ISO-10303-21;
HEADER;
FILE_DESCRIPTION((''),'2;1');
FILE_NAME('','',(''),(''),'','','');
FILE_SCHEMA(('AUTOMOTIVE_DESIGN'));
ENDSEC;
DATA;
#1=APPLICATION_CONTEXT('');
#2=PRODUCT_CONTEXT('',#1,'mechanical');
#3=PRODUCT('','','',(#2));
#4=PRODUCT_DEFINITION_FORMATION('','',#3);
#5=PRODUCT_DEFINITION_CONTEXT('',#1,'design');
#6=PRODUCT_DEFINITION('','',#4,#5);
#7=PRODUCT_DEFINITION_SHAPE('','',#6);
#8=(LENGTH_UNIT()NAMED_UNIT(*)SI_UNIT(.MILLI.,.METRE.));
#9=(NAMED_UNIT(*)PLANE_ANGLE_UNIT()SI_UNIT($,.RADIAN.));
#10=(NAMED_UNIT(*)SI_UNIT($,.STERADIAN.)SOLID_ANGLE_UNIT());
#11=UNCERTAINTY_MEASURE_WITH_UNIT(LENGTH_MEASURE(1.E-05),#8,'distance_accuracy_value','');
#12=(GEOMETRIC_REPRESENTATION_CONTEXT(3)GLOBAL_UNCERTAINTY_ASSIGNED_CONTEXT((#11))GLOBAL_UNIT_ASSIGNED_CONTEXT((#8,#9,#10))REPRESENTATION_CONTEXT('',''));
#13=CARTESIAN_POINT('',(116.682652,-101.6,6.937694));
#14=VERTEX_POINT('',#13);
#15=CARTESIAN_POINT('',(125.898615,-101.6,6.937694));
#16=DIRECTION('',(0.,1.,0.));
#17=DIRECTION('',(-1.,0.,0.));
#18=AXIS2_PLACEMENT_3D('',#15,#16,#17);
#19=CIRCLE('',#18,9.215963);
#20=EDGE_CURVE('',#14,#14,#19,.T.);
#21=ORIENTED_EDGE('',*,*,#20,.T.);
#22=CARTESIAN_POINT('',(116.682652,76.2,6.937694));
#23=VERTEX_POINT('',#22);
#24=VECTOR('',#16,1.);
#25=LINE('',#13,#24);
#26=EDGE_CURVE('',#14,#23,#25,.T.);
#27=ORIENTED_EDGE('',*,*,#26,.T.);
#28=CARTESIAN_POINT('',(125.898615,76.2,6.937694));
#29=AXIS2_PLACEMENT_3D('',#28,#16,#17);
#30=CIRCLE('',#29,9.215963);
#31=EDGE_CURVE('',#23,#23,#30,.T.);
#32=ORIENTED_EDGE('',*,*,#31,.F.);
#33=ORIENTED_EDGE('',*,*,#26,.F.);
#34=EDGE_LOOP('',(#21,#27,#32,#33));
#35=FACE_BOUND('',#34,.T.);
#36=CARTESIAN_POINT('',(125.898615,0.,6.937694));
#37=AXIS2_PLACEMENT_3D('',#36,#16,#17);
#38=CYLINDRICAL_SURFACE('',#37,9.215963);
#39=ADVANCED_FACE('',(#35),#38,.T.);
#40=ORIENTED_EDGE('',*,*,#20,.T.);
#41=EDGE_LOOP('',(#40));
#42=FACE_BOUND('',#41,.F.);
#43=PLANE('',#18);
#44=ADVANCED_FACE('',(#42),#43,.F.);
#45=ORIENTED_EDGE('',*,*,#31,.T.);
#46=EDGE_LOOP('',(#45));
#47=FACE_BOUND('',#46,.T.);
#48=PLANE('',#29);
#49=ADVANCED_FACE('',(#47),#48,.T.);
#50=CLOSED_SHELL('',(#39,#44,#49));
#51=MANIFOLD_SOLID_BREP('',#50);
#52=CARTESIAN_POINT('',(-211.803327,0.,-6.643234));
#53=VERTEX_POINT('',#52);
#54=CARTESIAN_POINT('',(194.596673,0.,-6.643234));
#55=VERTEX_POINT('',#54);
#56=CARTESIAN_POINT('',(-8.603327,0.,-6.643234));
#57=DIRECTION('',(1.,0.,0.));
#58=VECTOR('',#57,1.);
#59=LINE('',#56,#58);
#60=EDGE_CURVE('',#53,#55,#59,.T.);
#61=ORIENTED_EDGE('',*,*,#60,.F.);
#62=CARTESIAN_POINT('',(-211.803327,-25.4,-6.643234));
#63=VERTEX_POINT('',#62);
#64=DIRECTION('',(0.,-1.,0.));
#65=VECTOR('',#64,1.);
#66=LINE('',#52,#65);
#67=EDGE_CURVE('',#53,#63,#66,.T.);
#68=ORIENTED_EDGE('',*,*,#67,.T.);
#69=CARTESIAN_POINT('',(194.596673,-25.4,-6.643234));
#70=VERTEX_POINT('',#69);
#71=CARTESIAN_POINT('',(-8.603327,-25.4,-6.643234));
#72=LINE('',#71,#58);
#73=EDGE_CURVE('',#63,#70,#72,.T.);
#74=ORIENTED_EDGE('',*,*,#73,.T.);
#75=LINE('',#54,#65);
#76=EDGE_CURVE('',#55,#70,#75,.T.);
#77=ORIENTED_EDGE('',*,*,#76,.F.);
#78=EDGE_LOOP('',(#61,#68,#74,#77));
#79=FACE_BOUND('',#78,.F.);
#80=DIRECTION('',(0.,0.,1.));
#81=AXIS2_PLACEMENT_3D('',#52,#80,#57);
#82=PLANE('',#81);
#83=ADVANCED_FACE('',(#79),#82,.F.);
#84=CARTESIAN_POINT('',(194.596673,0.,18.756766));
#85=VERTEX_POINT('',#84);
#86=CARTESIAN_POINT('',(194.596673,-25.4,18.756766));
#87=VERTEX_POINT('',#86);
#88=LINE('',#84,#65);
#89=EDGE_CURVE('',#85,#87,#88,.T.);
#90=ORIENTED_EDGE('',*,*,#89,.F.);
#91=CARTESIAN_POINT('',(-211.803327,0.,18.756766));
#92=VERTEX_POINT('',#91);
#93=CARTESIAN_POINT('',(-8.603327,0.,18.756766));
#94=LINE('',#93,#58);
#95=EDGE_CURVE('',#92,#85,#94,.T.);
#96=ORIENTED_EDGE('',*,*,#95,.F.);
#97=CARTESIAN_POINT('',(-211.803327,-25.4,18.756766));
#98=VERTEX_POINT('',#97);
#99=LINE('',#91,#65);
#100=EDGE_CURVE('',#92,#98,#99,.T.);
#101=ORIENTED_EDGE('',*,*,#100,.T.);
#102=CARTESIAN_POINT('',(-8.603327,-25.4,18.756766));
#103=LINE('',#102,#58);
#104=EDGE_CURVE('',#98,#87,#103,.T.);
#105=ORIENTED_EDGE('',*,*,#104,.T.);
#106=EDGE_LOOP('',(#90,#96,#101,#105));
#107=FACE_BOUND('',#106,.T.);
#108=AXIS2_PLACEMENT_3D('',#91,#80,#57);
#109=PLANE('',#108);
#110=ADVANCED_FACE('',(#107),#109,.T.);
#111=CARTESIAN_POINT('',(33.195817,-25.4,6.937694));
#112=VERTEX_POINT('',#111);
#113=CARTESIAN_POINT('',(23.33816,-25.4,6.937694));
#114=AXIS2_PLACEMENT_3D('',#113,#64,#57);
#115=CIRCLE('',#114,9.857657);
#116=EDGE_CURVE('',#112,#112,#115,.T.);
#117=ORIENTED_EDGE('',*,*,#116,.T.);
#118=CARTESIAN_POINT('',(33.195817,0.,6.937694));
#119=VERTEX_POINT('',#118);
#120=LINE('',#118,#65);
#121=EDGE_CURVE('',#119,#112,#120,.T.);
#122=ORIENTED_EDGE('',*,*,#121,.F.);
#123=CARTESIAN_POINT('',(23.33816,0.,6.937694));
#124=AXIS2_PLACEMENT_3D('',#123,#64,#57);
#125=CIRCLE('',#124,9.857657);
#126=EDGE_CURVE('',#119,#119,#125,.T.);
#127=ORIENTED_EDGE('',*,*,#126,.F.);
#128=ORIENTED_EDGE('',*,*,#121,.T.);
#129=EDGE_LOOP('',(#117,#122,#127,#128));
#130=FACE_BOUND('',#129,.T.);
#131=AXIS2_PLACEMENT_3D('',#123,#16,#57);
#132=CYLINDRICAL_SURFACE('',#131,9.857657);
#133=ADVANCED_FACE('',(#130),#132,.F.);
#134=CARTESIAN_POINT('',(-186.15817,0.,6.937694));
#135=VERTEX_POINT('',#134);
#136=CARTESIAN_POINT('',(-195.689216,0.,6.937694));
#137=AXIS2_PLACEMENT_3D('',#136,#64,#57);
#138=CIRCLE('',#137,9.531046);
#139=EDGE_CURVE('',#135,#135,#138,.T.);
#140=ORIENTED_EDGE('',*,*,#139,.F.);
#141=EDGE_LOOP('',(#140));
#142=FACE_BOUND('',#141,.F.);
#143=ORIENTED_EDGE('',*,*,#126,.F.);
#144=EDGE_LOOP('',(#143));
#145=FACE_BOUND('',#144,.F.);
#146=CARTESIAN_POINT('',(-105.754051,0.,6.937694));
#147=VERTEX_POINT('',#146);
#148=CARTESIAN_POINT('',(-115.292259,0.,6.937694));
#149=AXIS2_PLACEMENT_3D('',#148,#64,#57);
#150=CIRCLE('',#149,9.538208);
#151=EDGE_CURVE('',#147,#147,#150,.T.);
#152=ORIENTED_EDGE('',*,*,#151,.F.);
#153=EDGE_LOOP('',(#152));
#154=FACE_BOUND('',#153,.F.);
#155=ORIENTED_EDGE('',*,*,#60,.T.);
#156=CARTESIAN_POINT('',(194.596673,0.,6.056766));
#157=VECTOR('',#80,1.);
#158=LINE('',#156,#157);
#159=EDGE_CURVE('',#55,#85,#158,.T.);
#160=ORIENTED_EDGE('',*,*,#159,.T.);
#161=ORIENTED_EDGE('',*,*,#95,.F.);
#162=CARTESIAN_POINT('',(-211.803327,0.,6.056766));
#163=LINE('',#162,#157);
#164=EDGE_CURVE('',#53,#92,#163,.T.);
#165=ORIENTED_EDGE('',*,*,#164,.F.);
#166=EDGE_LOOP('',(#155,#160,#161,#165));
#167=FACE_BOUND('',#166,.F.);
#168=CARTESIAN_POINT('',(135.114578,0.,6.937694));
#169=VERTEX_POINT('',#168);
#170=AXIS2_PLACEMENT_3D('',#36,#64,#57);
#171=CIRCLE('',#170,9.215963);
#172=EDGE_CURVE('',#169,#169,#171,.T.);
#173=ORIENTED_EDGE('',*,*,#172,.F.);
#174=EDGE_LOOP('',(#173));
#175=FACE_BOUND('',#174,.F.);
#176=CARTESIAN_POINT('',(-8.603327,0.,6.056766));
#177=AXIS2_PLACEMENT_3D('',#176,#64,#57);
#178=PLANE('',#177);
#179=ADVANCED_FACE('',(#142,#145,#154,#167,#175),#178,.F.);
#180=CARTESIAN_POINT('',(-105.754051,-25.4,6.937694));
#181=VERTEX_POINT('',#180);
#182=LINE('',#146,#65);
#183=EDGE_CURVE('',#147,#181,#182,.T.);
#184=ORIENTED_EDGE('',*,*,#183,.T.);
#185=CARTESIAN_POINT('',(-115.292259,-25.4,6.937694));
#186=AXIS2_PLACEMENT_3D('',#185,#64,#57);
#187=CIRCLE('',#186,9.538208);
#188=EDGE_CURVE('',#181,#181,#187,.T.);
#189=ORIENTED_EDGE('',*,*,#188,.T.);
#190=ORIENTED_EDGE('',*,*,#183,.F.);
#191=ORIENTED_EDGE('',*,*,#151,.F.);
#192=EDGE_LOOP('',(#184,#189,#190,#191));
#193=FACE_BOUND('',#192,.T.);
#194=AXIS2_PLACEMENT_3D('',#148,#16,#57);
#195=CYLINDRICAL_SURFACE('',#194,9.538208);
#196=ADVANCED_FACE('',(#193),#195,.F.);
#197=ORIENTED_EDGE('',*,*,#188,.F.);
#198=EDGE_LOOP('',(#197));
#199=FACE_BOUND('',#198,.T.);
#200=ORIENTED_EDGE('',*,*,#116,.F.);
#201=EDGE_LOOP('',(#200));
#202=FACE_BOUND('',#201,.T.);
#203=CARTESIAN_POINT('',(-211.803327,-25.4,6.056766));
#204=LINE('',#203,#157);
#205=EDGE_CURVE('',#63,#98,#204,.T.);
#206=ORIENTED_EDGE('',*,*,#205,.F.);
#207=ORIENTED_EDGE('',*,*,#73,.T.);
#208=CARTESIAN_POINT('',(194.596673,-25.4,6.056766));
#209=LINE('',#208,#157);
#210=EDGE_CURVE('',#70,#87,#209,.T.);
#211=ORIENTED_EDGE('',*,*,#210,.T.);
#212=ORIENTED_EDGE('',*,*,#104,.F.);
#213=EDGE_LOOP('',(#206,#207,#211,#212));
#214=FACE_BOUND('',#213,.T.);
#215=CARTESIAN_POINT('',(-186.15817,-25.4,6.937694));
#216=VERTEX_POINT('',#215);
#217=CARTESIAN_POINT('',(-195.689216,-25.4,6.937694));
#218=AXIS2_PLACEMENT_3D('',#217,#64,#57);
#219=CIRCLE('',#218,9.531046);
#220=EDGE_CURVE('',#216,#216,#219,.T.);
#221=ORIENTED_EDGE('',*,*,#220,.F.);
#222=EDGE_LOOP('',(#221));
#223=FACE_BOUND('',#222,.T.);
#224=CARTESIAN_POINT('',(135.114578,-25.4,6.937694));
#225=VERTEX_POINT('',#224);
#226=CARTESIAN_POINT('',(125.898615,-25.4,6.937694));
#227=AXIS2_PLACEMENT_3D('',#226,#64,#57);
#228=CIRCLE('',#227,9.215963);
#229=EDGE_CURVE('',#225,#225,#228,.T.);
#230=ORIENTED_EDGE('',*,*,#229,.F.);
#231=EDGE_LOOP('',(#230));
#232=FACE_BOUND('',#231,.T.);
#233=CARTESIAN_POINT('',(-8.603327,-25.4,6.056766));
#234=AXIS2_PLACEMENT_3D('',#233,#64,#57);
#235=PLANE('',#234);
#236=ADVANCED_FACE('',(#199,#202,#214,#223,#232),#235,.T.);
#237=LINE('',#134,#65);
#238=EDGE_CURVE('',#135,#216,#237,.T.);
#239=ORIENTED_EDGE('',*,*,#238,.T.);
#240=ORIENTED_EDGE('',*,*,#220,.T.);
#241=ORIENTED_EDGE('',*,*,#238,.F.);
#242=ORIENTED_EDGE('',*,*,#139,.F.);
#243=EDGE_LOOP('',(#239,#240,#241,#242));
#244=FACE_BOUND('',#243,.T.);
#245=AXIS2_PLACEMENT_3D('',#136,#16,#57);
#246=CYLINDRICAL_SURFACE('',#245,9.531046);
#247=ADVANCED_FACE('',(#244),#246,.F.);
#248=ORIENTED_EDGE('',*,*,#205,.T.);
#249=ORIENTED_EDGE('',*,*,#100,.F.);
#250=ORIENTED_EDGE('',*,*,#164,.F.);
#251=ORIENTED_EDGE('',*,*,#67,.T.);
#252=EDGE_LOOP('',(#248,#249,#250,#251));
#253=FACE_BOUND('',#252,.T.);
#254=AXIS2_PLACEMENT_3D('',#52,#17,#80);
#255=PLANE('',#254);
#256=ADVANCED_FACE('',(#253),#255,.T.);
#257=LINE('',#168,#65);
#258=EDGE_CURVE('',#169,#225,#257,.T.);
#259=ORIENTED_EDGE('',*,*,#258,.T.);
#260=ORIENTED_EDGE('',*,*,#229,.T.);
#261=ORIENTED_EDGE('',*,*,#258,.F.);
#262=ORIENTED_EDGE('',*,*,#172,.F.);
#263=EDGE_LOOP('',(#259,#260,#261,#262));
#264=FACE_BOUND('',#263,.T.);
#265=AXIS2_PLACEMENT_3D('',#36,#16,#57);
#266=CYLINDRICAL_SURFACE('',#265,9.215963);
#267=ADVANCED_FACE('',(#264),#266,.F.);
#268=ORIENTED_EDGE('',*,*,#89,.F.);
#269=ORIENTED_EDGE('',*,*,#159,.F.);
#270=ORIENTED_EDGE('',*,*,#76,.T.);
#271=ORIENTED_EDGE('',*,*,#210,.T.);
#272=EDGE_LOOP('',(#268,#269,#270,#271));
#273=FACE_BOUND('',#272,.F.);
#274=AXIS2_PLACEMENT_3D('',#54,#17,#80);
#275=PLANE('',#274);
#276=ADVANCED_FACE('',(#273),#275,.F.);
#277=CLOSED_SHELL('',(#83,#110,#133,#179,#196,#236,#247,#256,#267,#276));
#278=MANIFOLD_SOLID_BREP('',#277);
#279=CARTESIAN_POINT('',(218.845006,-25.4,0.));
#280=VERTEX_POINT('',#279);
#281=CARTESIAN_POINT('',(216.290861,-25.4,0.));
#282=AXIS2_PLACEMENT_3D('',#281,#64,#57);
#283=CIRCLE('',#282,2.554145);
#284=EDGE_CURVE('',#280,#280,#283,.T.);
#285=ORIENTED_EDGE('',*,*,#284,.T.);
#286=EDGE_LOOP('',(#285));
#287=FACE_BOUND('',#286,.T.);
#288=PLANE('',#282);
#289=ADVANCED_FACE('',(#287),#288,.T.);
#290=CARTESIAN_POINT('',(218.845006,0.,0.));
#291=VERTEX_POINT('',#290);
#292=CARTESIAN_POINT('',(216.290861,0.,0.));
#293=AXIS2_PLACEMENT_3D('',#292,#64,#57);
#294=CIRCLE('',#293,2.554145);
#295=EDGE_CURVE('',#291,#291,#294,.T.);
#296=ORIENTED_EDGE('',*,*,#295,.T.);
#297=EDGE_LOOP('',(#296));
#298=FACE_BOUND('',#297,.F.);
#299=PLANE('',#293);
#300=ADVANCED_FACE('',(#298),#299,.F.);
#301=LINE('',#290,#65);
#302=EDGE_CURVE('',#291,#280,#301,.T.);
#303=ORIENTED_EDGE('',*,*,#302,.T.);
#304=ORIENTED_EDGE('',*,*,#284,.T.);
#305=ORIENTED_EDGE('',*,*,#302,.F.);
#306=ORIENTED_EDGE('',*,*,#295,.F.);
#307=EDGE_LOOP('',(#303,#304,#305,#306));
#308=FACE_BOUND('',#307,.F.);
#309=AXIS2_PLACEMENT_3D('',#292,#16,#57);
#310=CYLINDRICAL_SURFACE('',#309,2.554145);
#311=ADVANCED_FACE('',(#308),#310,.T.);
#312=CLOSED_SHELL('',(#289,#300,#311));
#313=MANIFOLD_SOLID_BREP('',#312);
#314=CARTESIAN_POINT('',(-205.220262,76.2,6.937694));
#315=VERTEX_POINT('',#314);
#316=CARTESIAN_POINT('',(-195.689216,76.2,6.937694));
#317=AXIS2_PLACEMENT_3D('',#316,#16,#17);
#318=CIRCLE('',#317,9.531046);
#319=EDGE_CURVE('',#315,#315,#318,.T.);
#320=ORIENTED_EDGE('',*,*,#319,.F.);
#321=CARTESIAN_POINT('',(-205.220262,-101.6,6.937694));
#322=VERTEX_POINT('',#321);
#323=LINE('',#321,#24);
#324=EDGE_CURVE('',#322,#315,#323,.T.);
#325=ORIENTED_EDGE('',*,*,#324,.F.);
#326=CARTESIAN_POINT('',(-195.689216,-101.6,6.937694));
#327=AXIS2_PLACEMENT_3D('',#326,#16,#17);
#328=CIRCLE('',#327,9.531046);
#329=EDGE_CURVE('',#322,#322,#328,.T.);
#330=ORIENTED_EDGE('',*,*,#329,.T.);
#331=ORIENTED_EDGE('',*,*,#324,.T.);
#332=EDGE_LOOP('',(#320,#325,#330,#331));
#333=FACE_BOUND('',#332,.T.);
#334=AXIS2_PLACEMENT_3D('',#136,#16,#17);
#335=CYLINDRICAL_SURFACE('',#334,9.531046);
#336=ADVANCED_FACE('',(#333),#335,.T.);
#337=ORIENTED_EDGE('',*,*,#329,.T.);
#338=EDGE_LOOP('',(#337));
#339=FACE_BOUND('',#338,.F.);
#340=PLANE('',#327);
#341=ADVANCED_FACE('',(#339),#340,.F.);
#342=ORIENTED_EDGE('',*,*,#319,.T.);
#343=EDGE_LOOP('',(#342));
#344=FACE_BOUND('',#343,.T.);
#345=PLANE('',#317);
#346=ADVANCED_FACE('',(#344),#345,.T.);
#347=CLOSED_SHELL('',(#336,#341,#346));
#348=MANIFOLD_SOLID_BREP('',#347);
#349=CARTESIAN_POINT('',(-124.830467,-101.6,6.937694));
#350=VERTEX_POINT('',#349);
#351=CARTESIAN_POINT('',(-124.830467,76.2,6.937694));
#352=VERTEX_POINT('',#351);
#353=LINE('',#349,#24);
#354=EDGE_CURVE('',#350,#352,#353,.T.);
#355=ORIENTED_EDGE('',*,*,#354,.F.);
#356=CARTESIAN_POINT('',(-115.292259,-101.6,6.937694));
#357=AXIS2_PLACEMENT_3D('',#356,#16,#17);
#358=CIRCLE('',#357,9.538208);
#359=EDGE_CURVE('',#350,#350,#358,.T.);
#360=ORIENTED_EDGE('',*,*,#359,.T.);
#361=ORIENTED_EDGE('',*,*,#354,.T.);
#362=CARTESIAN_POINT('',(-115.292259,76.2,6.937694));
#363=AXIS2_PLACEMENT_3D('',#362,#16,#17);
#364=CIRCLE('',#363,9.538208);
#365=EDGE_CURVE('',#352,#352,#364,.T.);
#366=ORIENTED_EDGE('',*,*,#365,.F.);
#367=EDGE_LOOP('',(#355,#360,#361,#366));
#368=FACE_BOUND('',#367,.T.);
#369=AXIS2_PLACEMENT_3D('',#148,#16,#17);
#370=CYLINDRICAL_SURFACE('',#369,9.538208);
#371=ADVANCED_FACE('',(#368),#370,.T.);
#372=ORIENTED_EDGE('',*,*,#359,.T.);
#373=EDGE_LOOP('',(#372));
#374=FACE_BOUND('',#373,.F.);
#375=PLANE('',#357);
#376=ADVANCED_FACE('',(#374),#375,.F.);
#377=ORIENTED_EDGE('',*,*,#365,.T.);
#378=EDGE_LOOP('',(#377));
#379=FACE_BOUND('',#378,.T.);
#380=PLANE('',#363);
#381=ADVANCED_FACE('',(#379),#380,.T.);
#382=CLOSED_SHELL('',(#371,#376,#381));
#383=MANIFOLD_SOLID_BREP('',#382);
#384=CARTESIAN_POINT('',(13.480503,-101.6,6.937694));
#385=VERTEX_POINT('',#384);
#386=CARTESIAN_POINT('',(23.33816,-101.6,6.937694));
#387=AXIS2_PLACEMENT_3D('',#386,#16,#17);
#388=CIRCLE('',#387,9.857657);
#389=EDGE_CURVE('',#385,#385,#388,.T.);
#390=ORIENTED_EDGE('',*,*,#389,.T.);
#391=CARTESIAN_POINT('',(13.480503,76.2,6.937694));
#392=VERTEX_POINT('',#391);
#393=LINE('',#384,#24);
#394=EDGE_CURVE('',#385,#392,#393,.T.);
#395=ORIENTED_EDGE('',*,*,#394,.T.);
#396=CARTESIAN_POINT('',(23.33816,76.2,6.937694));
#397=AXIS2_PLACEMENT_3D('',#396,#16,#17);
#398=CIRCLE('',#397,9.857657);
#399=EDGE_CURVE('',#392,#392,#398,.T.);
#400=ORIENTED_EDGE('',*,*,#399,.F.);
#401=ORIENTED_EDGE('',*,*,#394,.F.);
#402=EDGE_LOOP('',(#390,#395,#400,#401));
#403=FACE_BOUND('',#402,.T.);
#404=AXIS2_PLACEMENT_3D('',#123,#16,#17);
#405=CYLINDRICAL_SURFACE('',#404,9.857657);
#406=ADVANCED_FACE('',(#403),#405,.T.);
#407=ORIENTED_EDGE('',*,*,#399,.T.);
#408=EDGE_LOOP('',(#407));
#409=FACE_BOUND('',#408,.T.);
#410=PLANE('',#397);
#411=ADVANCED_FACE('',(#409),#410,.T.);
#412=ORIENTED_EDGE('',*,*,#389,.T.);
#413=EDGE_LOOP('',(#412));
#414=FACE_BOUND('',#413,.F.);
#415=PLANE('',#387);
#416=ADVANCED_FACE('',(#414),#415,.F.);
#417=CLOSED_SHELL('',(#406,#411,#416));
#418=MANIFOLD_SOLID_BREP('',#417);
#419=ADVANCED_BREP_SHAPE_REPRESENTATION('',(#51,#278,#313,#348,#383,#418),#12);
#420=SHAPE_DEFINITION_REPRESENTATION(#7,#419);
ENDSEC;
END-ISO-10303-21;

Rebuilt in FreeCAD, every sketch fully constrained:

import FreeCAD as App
import Part
import Sketcher

V = App.Vector
Q = App.Units.Quantity

doc = App.newDocument("Part")
body = doc.addObject("PartDesign::Body", "Body")
body.AllowCompound = True

# Sketch on XZ plane
sketch1 = body.newObject("Sketcher::SketchObject", "Sketch")
sketch1.AttachmentSupport = (doc.getObject("XZ_Plane"), [""])
sketch1.MapMode = "FlatFace"
sketch1.addGeometry([
    Part.LineSegment(V(-211.8, 18.8, 0), V(-211.8, -6.6, 0)),  # 0
    Part.LineSegment(V(-211.8, -6.6, 0), V(194.6, -6.6, 0)),  # 1
    Part.LineSegment(V(194.6, -6.6, 0), V(194.6, 18.8, 0)),  # 2
    Part.LineSegment(V(194.6, 18.8, 0), V(-211.8, 18.8, 0)),  # 3
    Part.Circle(V(-195.7, 6.9, 0), V(0, 0, 1), 9.5),  # 4
    Part.Circle(V(-115.3, 6.9, 0), V(0, 0, 1), 9.5),  # 5
    Part.Circle(V(23.3, 6.9, 0), V(0, 0, 1), 9.9),  # 6
    Part.Circle(V(125.9, 6.9, 0), V(0, 0, 1), 9.2),  # 7
    Part.Circle(V(216.3, 0, 0), V(0, 0, 1), 2.6),  # 8
], False)
sketch1.addConstraint([
    Sketcher.Constraint("Coincident", 0, 2, 1, 1),
    Sketcher.Constraint("Coincident", 1, 2, 2, 1),
    Sketcher.Constraint("Coincident", 2, 2, 3, 1),
    Sketcher.Constraint("Coincident", 3, 2, 0, 1),
    Sketcher.Constraint("Vertical", 0),
    Sketcher.Constraint("Horizontal", 1),
    Sketcher.Constraint("Vertical", 2),
    Sketcher.Constraint("Horizontal", 3),
    Sketcher.Constraint("PointOnObject", 8, 3, -1),
    Sketcher.Constraint("Horizontal", 4, 3, 5, 3),
    Sketcher.Constraint("Horizontal", 5, 3, 6, 3),
    Sketcher.Constraint("Horizontal", 6, 3, 7, 3),
    Sketcher.Constraint("DistanceX", 1, 1, 1, 2, Q("16 in")),
    Sketcher.Constraint("DistanceY", 0, 2, 0, 1, Q("1 in")),
    Sketcher.Constraint("Diameter", 4, Q("19.062092 mm")),
    Sketcher.Constraint("Diameter", 8, Q("5.10829 mm")),
    Sketcher.Constraint("Diameter", 5, Q("19.076416 mm")),
    Sketcher.Constraint("Diameter", 6, Q("19.715314 mm")),
    Sketcher.Constraint("Diameter", 7, Q("18.431926 mm")),
    Sketcher.Constraint("DistanceX", 4, 3, -1, 1, Q("7.7042998 in")),
    Sketcher.Constraint("DistanceX", 6, 3, 8, 3, Q("192.952701 mm")),
    Sketcher.Constraint("DistanceX", 5, 3, -1, 1, Q("115.292259 mm")),
    Sketcher.Constraint("DistanceX", -1, 1, 6, 3, Q("23.33816 mm")),
    Sketcher.Constraint("DistanceX", 4, 3, 7, 3, Q("321.587831 mm")),
    Sketcher.Constraint("DistanceX", 0, 2, 4, 3, Q("16.114111 mm")),
    Sketcher.Constraint("DistanceY", 7, 3, 2, 2, Q("11.819072 mm")),
    Sketcher.Constraint("DistanceY", -1, 1, 4, 3, Q("6.937694 mm")),
])
pad1 = body.newObject("PartDesign::Pad", "Pad")
pad1.Profile = sketch1
pad1.Length = Q("1 in")
body2 = doc.addObject("PartDesign::Body", "Body001")
body2.AllowCompound = True

# Sketch on XZ plane
sketch2 = body2.newObject("Sketcher::SketchObject", "Sketch001")
sketch2.AttachmentSupport = (doc.getObject("XZ_Plane001"), [""])
sketch2.MapMode = "FlatFace"
sketch2.addGeometry([
    Part.Circle(V(126, 7, 0), V(0, 0, 1), 9),
    Part.Circle(V(23, 7, 0), V(0, 0, 1), 10),
    Part.Circle(V(-115, 7, 0), V(0, 0, 1), 10),
    Part.Circle(V(-196, 7, 0), V(0, 0, 1), 10),
], False)
sketch2.addConstraint([
    Sketcher.Constraint("Horizontal", 0, 3, 1, 3),
    Sketcher.Constraint("Horizontal", 1, 3, 2, 3),
    Sketcher.Constraint("Horizontal", 2, 3, 3, 3),
    Sketcher.Constraint("Diameter", 3, Q("19.062092 mm")),
    Sketcher.Constraint("Diameter", 0, Q("18.431926 mm")),
    Sketcher.Constraint("Diameter", 1, Q("19.715314 mm")),
    Sketcher.Constraint("Diameter", 2, Q("19.076416 mm")),
    Sketcher.Constraint("DistanceX", 3, 3, -1, 1, Q("7.7042998 in")),
    Sketcher.Constraint("DistanceX", -1, 1, 1, 3, Q("23.33816 mm")),
    Sketcher.Constraint("DistanceX", 2, 3, -1, 1, Q("115.292259 mm")),
    Sketcher.Constraint("DistanceX", 3, 3, 0, 3, Q("321.587831 mm")),
    Sketcher.Constraint("DistanceY", -1, 1, 0, 3, Q("6.937694 mm")),
])
pad2 = body2.newObject("PartDesign::Pad", "Pad001")
pad2.Profile = sketch2
pad2.Type = "TwoLengths"
pad2.Length = Q("3 in")
pad2.Length2 = Q("4 in")
pad2.Reversed = True

doc.recompute()
